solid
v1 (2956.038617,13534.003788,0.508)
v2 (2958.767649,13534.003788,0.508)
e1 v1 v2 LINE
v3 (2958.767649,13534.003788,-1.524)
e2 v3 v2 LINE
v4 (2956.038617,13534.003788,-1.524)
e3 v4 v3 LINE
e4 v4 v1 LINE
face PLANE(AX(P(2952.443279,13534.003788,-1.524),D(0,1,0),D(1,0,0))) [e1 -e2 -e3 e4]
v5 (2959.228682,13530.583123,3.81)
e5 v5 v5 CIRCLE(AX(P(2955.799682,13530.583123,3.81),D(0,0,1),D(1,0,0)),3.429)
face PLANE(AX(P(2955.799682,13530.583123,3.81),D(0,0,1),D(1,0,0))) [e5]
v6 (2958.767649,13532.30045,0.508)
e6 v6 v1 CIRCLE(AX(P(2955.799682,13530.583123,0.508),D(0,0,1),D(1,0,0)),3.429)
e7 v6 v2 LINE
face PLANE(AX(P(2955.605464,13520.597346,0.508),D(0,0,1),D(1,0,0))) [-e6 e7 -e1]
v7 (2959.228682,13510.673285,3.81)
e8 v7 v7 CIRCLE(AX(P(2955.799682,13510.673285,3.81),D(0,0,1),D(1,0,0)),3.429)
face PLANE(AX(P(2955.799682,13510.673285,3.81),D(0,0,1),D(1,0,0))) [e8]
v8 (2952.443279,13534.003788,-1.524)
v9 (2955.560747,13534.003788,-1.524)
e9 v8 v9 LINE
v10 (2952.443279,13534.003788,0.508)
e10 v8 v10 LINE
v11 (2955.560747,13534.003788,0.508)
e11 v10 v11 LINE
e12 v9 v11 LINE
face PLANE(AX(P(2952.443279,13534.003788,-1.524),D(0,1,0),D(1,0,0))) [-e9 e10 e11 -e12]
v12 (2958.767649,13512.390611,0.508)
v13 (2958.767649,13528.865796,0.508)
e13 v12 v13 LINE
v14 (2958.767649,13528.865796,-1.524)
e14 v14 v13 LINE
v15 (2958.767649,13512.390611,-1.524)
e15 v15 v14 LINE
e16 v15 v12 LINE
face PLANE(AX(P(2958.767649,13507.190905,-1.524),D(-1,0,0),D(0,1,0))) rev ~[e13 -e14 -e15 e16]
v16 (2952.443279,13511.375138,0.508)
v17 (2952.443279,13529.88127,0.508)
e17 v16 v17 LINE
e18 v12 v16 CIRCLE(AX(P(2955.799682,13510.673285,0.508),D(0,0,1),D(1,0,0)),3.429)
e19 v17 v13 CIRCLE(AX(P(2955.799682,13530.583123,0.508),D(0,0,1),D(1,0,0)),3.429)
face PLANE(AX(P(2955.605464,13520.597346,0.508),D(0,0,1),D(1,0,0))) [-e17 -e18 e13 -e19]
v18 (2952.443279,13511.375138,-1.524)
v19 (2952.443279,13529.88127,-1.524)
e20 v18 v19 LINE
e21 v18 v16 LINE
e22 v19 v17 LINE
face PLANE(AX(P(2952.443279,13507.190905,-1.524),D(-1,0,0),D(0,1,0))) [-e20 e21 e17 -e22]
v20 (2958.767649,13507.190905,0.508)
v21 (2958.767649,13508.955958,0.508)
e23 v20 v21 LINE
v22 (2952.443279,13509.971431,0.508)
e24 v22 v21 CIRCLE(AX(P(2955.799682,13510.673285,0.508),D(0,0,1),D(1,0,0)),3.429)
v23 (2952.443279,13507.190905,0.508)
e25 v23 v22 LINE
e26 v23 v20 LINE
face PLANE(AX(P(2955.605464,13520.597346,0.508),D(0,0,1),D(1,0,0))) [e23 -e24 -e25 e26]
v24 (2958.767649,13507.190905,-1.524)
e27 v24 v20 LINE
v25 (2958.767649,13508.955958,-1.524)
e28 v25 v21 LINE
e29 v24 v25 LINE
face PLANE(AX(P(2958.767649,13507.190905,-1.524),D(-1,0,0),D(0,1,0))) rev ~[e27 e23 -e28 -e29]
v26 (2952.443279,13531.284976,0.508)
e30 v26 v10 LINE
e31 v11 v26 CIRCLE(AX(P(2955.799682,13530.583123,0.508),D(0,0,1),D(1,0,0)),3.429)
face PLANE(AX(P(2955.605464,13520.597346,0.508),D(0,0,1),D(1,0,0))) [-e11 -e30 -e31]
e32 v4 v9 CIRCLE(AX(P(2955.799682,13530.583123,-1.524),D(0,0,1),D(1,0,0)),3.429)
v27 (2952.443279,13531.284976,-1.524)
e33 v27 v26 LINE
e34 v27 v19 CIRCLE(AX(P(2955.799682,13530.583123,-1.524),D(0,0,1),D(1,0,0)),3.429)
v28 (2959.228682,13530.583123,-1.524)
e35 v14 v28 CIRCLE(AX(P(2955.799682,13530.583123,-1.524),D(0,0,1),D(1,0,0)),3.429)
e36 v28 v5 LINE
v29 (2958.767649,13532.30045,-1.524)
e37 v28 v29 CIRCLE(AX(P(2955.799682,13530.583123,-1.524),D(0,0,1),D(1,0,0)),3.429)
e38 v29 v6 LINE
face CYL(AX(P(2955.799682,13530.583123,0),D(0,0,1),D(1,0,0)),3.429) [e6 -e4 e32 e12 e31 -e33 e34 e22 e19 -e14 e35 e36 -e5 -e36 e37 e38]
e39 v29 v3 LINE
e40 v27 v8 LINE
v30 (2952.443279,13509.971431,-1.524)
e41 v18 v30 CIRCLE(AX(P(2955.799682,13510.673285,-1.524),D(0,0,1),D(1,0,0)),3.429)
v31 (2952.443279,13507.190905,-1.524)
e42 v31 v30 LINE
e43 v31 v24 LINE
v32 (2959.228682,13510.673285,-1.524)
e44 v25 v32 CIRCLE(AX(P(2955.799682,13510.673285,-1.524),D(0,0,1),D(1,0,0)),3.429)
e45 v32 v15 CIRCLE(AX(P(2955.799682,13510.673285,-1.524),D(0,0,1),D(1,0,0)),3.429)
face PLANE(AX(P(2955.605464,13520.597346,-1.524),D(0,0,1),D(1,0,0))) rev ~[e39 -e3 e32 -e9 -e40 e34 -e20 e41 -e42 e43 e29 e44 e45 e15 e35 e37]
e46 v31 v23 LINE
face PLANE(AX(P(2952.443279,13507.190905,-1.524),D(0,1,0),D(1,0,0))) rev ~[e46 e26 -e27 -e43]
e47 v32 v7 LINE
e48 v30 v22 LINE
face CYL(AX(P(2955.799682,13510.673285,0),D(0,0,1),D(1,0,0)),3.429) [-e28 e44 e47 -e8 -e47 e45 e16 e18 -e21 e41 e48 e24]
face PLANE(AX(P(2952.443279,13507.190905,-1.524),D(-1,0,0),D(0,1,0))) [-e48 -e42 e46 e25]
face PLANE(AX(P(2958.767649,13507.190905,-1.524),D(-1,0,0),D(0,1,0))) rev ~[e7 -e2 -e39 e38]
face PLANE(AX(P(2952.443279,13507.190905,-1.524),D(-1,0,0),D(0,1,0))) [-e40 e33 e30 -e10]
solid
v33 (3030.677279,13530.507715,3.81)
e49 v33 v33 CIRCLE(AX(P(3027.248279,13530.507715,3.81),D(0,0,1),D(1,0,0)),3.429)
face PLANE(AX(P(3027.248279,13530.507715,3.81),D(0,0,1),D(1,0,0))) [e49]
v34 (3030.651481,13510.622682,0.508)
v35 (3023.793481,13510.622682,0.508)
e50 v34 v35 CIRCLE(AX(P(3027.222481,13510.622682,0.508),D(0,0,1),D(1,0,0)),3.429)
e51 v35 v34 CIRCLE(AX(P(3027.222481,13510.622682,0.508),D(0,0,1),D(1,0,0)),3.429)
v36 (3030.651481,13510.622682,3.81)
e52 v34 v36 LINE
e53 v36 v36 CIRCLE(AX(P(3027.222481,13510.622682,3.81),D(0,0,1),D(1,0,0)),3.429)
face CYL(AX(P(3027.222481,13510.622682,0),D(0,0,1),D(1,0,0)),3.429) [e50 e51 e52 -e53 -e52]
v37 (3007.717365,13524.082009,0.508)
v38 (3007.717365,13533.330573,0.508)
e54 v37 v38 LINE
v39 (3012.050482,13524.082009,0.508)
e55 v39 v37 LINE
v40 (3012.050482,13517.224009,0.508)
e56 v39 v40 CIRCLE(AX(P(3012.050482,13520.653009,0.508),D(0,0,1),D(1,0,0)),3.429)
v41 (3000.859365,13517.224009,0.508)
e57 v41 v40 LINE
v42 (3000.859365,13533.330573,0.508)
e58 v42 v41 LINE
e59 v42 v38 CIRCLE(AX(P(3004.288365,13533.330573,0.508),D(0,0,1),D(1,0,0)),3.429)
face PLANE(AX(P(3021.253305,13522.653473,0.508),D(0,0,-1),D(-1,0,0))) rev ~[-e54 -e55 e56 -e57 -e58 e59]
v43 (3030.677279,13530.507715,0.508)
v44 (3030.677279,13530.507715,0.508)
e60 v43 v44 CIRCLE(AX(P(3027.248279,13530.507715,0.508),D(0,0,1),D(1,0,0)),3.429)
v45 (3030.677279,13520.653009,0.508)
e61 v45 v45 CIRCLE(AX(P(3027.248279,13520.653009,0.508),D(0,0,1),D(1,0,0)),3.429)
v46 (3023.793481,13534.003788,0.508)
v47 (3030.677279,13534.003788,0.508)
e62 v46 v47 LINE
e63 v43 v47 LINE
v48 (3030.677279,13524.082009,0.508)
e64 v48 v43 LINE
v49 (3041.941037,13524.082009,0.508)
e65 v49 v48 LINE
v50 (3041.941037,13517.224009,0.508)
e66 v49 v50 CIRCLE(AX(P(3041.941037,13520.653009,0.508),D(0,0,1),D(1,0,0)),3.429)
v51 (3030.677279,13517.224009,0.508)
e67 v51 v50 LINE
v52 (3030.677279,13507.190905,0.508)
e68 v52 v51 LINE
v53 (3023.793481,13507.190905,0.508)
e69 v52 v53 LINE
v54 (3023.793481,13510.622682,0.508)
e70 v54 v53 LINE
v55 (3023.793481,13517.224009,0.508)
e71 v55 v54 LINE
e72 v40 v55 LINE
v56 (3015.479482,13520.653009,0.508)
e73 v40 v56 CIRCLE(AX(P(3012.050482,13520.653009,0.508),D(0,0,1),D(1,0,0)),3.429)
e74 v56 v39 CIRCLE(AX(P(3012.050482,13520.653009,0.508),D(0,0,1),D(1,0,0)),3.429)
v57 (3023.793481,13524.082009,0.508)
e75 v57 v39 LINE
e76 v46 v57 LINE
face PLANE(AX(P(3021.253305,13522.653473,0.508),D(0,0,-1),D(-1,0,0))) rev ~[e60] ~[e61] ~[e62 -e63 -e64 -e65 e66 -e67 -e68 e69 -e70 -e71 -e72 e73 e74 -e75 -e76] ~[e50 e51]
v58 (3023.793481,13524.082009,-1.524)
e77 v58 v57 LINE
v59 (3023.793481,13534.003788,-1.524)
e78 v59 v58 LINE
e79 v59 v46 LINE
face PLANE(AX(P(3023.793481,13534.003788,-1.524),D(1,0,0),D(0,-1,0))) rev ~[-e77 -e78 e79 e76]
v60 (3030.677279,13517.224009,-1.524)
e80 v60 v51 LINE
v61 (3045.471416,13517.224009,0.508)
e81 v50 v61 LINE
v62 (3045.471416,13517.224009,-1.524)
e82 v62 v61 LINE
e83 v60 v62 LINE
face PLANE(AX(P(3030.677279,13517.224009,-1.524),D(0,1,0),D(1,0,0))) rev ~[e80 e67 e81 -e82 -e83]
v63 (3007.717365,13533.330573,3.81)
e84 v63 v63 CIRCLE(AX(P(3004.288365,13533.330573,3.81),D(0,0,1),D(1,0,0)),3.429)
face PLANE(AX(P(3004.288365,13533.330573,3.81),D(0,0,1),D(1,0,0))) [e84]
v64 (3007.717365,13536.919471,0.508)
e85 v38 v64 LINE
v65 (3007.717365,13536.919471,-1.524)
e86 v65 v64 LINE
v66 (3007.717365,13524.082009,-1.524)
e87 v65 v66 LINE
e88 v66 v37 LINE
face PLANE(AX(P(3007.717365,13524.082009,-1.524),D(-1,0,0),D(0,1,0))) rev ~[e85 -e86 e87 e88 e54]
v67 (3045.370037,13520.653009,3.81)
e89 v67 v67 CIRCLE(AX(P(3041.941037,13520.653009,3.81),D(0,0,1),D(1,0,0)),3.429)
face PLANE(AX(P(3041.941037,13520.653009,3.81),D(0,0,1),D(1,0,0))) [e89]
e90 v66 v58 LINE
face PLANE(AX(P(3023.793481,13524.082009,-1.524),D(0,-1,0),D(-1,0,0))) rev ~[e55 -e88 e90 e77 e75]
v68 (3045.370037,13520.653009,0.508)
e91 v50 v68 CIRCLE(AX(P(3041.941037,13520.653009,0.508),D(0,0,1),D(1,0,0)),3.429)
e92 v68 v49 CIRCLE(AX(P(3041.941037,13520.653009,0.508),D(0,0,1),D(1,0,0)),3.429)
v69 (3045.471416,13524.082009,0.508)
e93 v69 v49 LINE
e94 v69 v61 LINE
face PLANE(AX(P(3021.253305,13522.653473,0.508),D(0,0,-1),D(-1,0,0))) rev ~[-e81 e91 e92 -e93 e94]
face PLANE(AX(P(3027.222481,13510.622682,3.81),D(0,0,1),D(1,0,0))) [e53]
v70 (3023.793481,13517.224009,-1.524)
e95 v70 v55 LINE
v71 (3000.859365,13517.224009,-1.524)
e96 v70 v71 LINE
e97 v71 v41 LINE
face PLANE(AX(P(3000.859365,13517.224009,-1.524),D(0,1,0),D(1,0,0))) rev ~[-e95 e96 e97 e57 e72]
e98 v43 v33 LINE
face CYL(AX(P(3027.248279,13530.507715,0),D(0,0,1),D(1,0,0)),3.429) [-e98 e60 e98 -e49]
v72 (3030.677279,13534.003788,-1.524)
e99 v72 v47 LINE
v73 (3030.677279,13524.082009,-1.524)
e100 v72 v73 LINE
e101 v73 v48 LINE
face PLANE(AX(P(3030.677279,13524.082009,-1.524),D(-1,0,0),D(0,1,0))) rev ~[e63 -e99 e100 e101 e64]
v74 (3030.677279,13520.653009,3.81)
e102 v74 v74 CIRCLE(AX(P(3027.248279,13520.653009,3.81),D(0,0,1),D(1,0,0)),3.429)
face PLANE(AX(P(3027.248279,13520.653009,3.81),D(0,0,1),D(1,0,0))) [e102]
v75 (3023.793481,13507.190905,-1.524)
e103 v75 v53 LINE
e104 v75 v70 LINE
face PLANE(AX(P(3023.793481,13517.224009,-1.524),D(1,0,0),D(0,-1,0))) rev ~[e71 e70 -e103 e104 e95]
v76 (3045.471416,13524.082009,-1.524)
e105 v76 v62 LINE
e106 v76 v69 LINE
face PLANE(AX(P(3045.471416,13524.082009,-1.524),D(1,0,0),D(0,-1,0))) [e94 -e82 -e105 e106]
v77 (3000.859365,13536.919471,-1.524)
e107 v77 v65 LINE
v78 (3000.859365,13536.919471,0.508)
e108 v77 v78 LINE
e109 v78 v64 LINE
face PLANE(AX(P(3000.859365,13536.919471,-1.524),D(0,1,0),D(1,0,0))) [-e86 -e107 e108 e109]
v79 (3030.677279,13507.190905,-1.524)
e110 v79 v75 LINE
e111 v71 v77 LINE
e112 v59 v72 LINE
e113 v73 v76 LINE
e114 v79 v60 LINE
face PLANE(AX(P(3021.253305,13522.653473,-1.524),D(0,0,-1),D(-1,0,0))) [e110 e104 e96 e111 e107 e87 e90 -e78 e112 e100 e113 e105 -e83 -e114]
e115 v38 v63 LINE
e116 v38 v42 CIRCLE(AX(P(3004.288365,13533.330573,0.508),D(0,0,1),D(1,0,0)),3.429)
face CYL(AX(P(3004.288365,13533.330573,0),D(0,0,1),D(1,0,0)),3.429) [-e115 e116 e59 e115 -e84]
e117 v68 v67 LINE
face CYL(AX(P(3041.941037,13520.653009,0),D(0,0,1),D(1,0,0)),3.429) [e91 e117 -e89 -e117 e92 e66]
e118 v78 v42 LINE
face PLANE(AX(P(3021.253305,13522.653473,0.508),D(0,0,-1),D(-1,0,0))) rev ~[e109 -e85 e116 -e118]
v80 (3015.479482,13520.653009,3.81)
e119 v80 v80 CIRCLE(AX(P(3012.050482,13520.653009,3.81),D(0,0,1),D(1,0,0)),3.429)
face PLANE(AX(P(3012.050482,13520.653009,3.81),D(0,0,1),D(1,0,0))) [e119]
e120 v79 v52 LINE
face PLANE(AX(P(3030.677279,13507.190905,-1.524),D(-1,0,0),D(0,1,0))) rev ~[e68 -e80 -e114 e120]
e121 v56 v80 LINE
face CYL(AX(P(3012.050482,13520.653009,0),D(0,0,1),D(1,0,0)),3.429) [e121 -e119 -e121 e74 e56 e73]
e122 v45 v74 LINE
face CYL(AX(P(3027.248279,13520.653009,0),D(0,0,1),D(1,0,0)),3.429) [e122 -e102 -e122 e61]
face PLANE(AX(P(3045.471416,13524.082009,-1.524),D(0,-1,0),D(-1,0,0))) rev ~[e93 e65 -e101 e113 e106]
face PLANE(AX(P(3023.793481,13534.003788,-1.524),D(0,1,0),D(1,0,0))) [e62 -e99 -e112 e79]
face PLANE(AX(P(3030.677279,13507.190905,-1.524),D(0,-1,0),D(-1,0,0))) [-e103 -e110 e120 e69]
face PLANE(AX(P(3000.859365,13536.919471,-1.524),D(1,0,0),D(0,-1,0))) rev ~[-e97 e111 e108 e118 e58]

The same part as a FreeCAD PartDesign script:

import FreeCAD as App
import Part
import Sketcher

V = App.Vector
Q = App.Units.Quantity


def add_polygon(sketch, points):
    """Adds a closed chain of lines whose ends are joined by coincident constraints."""
    first, n = sketch.GeometryCount, len(points)
    for a, b in zip(points, points[1:] + points[:1]):
        sketch.addGeometry(Part.LineSegment(App.Vector(*a, 0), App.Vector(*b, 0)), False)
    for i in range(n):
        sketch.addConstraint(Sketcher.Constraint("Coincident", first + i, 2, first + (i + 1) % n, 1))

doc = App.newDocument("Part")
params = doc.addObject("Spreadsheet::Sheet", "Params")
for row, (alias, value) in enumerate([
    ("sketch1_diameter", "0.27 in"),
    ("pad1_length", "0.15 in"),
    ("pad1_length2", "0.06 in"),
    ("sketch2_diameter", "0.27 in"),
    ("pad2_length", "0.15 in"),
    ("pad2_length2", "0.06 in"),
    ("sketch3_diameter", "0.27 in"),
    ("pad3_length", "0.15 in"),
    ("pad3_length2", "0.06 in"),
    ("sketch4_diameter", "0.27 in"),
    ("pad4_length", "0.15 in"),
    ("pad4_length2", "0.06 in"),
    ("sketch5_diameter", "0.27 in"),
    ("pad5_length", "0.15 in"),
    ("pad5_length2", "0.06 in"),
    ("sketch6_diameter", "0.27 in"),
    ("pad6_length", "0.15 in"),
    ("pad6_length2", "0.06 in"),
    ("sketch7_diameter", "0.27 in"),
    ("pad7_length", "0.15 in"),
    ("pad7_length2", "0.06 in"),
    ("sketch8_diameter", "0.27 in"),
    ("pad8_length", "0.15 in"),
    ("pad8_length2", "0.06 in"),
    ("sketch9_width", "0.27 in"),
    ("pad9_length", "0.08 in"),
], start=1):
    params.set(f"A{row}", alias)
    params.set(f"B{row}", "=" + value)
    params.setAlias(f"B{row}", alias)

body = doc.addObject("PartDesign::Body", "Body")

# Sketch on XY plane
sketch1 = doc.addObject("Sketcher::SketchObject", "Sketch")
body.addObject(sketch1)
sketch1.AttachmentSupport = (doc.XY_Plane, [""])
sketch1.MapMode = "FlatFace"
sketch1.addGeometry(Part.Circle(V(3027.2, 13530.5, 0), V(0, 0, 1), 3.4), False)
sketch1.addConstraint([
    Sketcher.Constraint("Diameter", 0, Q("0.27 in")),
    Sketcher.Constraint("DistanceX", -1, 1, 0, 3, 3027.248279),
    Sketcher.Constraint("DistanceY", -1, 1, 0, 3, 13530.507715),
])
sketch1.setExpression("Constraints[0]", "Params.sketch1_diameter")
pad1 = doc.addObject("PartDesign::Pad", "Pad")
body.addObject(pad1)
pad1.Profile = sketch1
pad1.Type = "TwoLengths"
pad1.setExpression("Length", "Params.pad1_length")
pad1.setExpression("Length2", "Params.pad1_length2")
body2 = doc.addObject("PartDesign::Body", "Body001")

# Sketch on XY plane
sketch2 = doc.addObject("Sketcher::SketchObject", "Sketch001")
body2.addObject(sketch2)
sketch2.AttachmentSupport = (doc.getObject("XY_Plane001"), [""])
sketch2.MapMode = "FlatFace"
sketch2.addGeometry(Part.Circle(V(3027.2, 13520.7, 0), V(0, 0, 1), 3.4), False)
sketch2.addConstraint([
    Sketcher.Constraint("Diameter", 0, Q("0.27 in")),
    Sketcher.Constraint("DistanceX", -1, 1, 0, 3, 3027.248279),
    Sketcher.Constraint("DistanceY", -1, 1, 0, 3, 13520.653009),
])
sketch2.setExpression("Constraints[0]", "Params.sketch2_diameter")
pad2 = doc.addObject("PartDesign::Pad", "Pad001")
body2.addObject(pad2)
pad2.Profile = sketch2
pad2.Type = "TwoLengths"
pad2.setExpression("Length", "Params.pad2_length")
pad2.setExpression("Length2", "Params.pad2_length2")
body3 = doc.addObject("PartDesign::Body", "Body002")

# Sketch on XY plane
sketch3 = doc.addObject("Sketcher::SketchObject", "Sketch002")
body3.addObject(sketch3)
sketch3.AttachmentSupport = (doc.getObject("XY_Plane002"), [""])
sketch3.MapMode = "FlatFace"
sketch3.addGeometry(Part.Circle(V(3027.2, 13510.6, 0), V(0, 0, 1), 3.4), False)
sketch3.addConstraint([
    Sketcher.Constraint("Diameter", 0, Q("0.27 in")),
    Sketcher.Constraint("DistanceX", -1, 1, 0, 3, 3027.222481),
    Sketcher.Constraint("DistanceY", -1, 1, 0, 3, 13510.622682),
])
sketch3.setExpression("Constraints[0]", "Params.sketch3_diameter")
pad3 = doc.addObject("PartDesign::Pad", "Pad002")
body3.addObject(pad3)
pad3.Profile = sketch3
pad3.Type = "TwoLengths"
pad3.setExpression("Length", "Params.pad3_length")
pad3.setExpression("Length2", "Params.pad3_length2")
body4 = doc.addObject("PartDesign::Body", "Body003")

# Sketch on XY plane
sketch4 = doc.addObject("Sketcher::SketchObject", "Sketch003")
body4.addObject(sketch4)
sketch4.AttachmentSupport = (doc.getObject("XY_Plane003"), [""])
sketch4.MapMode = "FlatFace"
sketch4.addGeometry(Part.Circle(V(3041.9, 13520.7, 0), V(0, 0, 1), 3.4), False)
sketch4.addConstraint([
    Sketcher.Constraint("Diameter", 0, Q("0.27 in")),
    Sketcher.Constraint("DistanceY", -1, 1, 0, 3, 13520.653009),
    Sketcher.Constraint("DistanceX", -1, 1, 0, 3, 3041.941037),
])
sketch4.setExpression("Constraints[0]", "Params.sketch4_diameter")
pad4 = doc.addObject("PartDesign::Pad", "Pad003")
body4.addObject(pad4)
pad4.Profile = sketch4
pad4.Type = "TwoLengths"
pad4.setExpression("Length", "Params.pad4_length")
pad4.setExpression("Length2", "Params.pad4_length2")
body5 = doc.addObject("PartDesign::Body", "Body004")

# Sketch on XY plane
sketch5 = doc.addObject("Sketcher::SketchObject", "Sketch004")
body5.addObject(sketch5)
sketch5.AttachmentSupport = (doc.getObject("XY_Plane004"), [""])
sketch5.MapMode = "FlatFace"
sketch5.addGeometry(Part.Circle(V(3012.1, 13520.7, 0), V(0, 0, 1), 3.4), False)
sketch5.addConstraint([
    Sketcher.Constraint("Diameter", 0, Q("0.27 in")),
    Sketcher.Constraint("DistanceY", -1, 1, 0, 3, 13520.653009),
    Sketcher.Constraint("DistanceX", -1, 1, 0, 3, 3012.050482),
])
sketch5.setExpression("Constraints[0]", "Params.sketch5_diameter")
pad5 = doc.addObject("PartDesign::Pad", "Pad004")
body5.addObject(pad5)
pad5.Profile = sketch5
pad5.Type = "TwoLengths"
pad5.setExpression("Length", "Params.pad5_length")
pad5.setExpression("Length2", "Params.pad5_length2")
body6 = doc.addObject("PartDesign::Body", "Body005")

# Sketch on XY plane
sketch6 = doc.addObject("Sketcher::SketchObject", "Sketch005")
body6.addObject(sketch6)
sketch6.AttachmentSupport = (doc.getObject("XY_Plane005"), [""])
sketch6.MapMode = "FlatFace"
sketch6.addGeometry(Part.Circle(V(3004.3, 13533.3, 0), V(0, 0, 1), 3.4), False)
sketch6.addConstraint([
    Sketcher.Constraint("Diameter", 0, Q("0.27 in")),
    Sketcher.Constraint("DistanceX", -1, 1, 0, 3, 3004.288365),
    Sketcher.Constraint("DistanceY", -1, 1, 0, 3, 13533.330573),
])
sketch6.setExpression("Constraints[0]", "Params.sketch6_diameter")
pad6 = doc.addObject("PartDesign::Pad", "Pad005")
body6.addObject(pad6)
pad6.Profile = sketch6
pad6.Type = "TwoLengths"
pad6.setExpression("Length", "Params.pad6_length")
pad6.setExpression("Length2", "Params.pad6_length2")
body7 = doc.addObject("PartDesign::Body", "Body006")

# Sketch on XY plane
sketch7 = doc.addObject("Sketcher::SketchObject", "Sketch006")
body7.addObject(sketch7)
sketch7.AttachmentSupport = (doc.getObject("XY_Plane006"), [""])
sketch7.MapMode = "FlatFace"
sketch7.addGeometry(Part.Circle(V(2955.8, 13530.6, 0), V(0, 0, 1), 3.4), False)
sketch7.addConstraint([
    Sketcher.Constraint("Diameter", 0, Q("0.27 in")),
    Sketcher.Constraint("DistanceX", -1, 1, 0, 3, 2955.799682),
    Sketcher.Constraint("DistanceY", -1, 1, 0, 3, 13530.583123),
])
sketch7.setExpression("Constraints[0]", "Params.sketch7_diameter")
pad7 = doc.addObject("PartDesign::Pad", "Pad006")
body7.addObject(pad7)
pad7.Profile = sketch7
pad7.Type = "TwoLengths"
pad7.setExpression("Length", "Params.pad7_length")
pad7.setExpression("Length2", "Params.pad7_length2")
body8 = doc.addObject("PartDesign::Body", "Body007")

# Sketch on XY plane
sketch8 = doc.addObject("Sketcher::SketchObject", "Sketch007")
body8.addObject(sketch8)
sketch8.AttachmentSupport = (doc.getObject("XY_Plane007"), [""])
sketch8.MapMode = "FlatFace"
sketch8.addGeometry(Part.Circle(V(2955.8, 13510.7, 0), V(0, 0, 1), 3.4), False)
sketch8.addConstraint([
    Sketcher.Constraint("Diameter", 0, Q("0.27 in")),
    Sketcher.Constraint("DistanceX", -1, 1, 0, 3, 2955.799682),
    Sketcher.Constraint("DistanceY", -1, 1, 0, 3, 13510.673285),
])
sketch8.setExpression("Constraints[0]", "Params.sketch8_diameter")
pad8 = doc.addObject("PartDesign::Pad", "Pad007")
body8.addObject(pad8)
pad8.Profile = sketch8
pad8.Type = "TwoLengths"
pad8.setExpression("Length", "Params.pad8_length")
pad8.setExpression("Length2", "Params.pad8_length2")
body.AllowCompound = True
doc.recompute()

boolean = doc.addObject("PartDesign::Boolean", "Boolean")
body.addObject(boolean)
boolean.Type = "Fuse"
boolean.addObjects([body2])
doc.recompute()

boolean2 = doc.addObject("PartDesign::Boolean", "Boolean001")
body.addObject(boolean2)
boolean2.Type = "Fuse"
boolean2.addObjects([body3])
doc.recompute()

boolean3 = doc.addObject("PartDesign::Boolean", "Boolean002")
body.addObject(boolean3)
boolean3.Type = "Fuse"
boolean3.addObjects([body4])
doc.recompute()

boolean4 = doc.addObject("PartDesign::Boolean", "Boolean003")
body.addObject(boolean4)
boolean4.Type = "Fuse"
boolean4.addObjects([body5])
doc.recompute()

boolean5 = doc.addObject("PartDesign::Boolean", "Boolean004")
body.addObject(boolean5)
boolean5.Type = "Fuse"
boolean5.addObjects([body6])
doc.recompute()

boolean6 = doc.addObject("PartDesign::Boolean", "Boolean005")
body.addObject(boolean6)
boolean6.Type = "Fuse"
boolean6.addObjects([body7])
doc.recompute()

boolean7 = doc.addObject("PartDesign::Boolean", "Boolean006")
body.addObject(boolean7)
boolean7.Type = "Fuse"
boolean7.addObjects([body8])

# Sketch on XY plane
sketch9 = doc.addObject("Sketcher::SketchObject", "Sketch008")
body.addObject(sketch9)
sketch9.AttachmentSupport = (doc.XY_Plane, [""])
sketch9.MapMode = "FlatFace"
sketch9.AttachmentOffset = App.Placement(V(0, 0, -0.06 * 25.4), App.Rotation())
add_polygon(sketch9, [(3031, 13507), (3031, 13517), (3045, 13517), (3045, 13524), (3031, 13524), (3031, 13534), (3024, 13534), (3024, 13524), (3008, 13524), (3008, 13537), (3001, 13537), (3001, 13517), (3024, 13517), (3024, 13507)])  # lines 0-13
add_polygon(sketch9, [(2952, 13534), (2952, 13507), (2959, 13507), (2959, 13534)])  # lines 14-17
sketch9.addConstraint([
    Sketcher.Constraint("Vertical", 0),
    Sketcher.Constraint("Horizontal", 1),
    Sketcher.Constraint("Vertical", 2),
    Sketcher.Constraint("Horizontal", 3),
    Sketcher.Constraint("Vertical", 4),
    Sketcher.Constraint("Horizontal", 5),
    Sketcher.Constraint("Vertical", 6),
    Sketcher.Constraint("Horizontal", 7),
    Sketcher.Constraint("Vertical", 8),
    Sketcher.Constraint("Horizontal", 9),
    Sketcher.Constraint("Vertical", 10),
    Sketcher.Constraint("Horizontal", 11),
    Sketcher.Constraint("Vertical", 12),
    Sketcher.Constraint("Horizontal", 13),
    Sketcher.Constraint("Vertical", 14),
    Sketcher.Constraint("Horizontal", 15),
    Sketcher.Constraint("Vertical", 16),
    Sketcher.Constraint("Horizontal", 17),
    Sketcher.Constraint("Horizontal", 3, 2, 6, 2),
    Sketcher.Constraint("Horizontal", 1, 2, 10, 2),
    Sketcher.Constraint("Horizontal", 13, 2, 14, 2),
    Sketcher.Constraint("Horizontal", 5, 2, 16, 2),
    Sketcher.Constraint("Vertical", 0, 2, 3, 2),
    Sketcher.Constraint("Vertical", 6, 2, 11, 2),
    Sketcher.Constraint("Equal", 9, 2),
    Sketcher.Constraint("DistanceX", 9, 2, 9, 1, Q("0.27 in")),
    Sketcher.Constraint("DistanceX", 15, 1, 15, 2, 6.324371),
    Sketcher.Constraint("DistanceY", 4, 1, 4, 2, 9.921779),
    Sketcher.Constraint("DistanceY", 8, 1, 8, 2, 12.837462),
    Sketcher.Constraint("DistanceX", 1, 1, 1, 2, 14.794136),
    Sketcher.Constraint("DistanceX", 5, 2, 5, 1, 6.883798),
    Sketcher.Constraint("DistanceX", 7, 2, 7, 1, 16.076116),
    Sketcher.Constraint("DistanceY", 0, 1, 0, 2, 10.033105),
    Sketcher.Constraint("DistanceX", -1, 1, 0, 2, 3030.677279),
    Sketcher.Constraint("DistanceY", -1, 1, 0, 2, 13517.224009),
    Sketcher.Constraint("DistanceX", -1, 1, 14, 2, 2952.443279),
])
sketch9.setExpression("Constraints[43]", "Params.sketch9_width")
pad9 = doc.addObject("PartDesign::Pad", "Pad008")
body.addObject(pad9)
pad9.Profile = sketch9
pad9.setExpression("Length", "Params.pad9_length")

doc.recompute()
